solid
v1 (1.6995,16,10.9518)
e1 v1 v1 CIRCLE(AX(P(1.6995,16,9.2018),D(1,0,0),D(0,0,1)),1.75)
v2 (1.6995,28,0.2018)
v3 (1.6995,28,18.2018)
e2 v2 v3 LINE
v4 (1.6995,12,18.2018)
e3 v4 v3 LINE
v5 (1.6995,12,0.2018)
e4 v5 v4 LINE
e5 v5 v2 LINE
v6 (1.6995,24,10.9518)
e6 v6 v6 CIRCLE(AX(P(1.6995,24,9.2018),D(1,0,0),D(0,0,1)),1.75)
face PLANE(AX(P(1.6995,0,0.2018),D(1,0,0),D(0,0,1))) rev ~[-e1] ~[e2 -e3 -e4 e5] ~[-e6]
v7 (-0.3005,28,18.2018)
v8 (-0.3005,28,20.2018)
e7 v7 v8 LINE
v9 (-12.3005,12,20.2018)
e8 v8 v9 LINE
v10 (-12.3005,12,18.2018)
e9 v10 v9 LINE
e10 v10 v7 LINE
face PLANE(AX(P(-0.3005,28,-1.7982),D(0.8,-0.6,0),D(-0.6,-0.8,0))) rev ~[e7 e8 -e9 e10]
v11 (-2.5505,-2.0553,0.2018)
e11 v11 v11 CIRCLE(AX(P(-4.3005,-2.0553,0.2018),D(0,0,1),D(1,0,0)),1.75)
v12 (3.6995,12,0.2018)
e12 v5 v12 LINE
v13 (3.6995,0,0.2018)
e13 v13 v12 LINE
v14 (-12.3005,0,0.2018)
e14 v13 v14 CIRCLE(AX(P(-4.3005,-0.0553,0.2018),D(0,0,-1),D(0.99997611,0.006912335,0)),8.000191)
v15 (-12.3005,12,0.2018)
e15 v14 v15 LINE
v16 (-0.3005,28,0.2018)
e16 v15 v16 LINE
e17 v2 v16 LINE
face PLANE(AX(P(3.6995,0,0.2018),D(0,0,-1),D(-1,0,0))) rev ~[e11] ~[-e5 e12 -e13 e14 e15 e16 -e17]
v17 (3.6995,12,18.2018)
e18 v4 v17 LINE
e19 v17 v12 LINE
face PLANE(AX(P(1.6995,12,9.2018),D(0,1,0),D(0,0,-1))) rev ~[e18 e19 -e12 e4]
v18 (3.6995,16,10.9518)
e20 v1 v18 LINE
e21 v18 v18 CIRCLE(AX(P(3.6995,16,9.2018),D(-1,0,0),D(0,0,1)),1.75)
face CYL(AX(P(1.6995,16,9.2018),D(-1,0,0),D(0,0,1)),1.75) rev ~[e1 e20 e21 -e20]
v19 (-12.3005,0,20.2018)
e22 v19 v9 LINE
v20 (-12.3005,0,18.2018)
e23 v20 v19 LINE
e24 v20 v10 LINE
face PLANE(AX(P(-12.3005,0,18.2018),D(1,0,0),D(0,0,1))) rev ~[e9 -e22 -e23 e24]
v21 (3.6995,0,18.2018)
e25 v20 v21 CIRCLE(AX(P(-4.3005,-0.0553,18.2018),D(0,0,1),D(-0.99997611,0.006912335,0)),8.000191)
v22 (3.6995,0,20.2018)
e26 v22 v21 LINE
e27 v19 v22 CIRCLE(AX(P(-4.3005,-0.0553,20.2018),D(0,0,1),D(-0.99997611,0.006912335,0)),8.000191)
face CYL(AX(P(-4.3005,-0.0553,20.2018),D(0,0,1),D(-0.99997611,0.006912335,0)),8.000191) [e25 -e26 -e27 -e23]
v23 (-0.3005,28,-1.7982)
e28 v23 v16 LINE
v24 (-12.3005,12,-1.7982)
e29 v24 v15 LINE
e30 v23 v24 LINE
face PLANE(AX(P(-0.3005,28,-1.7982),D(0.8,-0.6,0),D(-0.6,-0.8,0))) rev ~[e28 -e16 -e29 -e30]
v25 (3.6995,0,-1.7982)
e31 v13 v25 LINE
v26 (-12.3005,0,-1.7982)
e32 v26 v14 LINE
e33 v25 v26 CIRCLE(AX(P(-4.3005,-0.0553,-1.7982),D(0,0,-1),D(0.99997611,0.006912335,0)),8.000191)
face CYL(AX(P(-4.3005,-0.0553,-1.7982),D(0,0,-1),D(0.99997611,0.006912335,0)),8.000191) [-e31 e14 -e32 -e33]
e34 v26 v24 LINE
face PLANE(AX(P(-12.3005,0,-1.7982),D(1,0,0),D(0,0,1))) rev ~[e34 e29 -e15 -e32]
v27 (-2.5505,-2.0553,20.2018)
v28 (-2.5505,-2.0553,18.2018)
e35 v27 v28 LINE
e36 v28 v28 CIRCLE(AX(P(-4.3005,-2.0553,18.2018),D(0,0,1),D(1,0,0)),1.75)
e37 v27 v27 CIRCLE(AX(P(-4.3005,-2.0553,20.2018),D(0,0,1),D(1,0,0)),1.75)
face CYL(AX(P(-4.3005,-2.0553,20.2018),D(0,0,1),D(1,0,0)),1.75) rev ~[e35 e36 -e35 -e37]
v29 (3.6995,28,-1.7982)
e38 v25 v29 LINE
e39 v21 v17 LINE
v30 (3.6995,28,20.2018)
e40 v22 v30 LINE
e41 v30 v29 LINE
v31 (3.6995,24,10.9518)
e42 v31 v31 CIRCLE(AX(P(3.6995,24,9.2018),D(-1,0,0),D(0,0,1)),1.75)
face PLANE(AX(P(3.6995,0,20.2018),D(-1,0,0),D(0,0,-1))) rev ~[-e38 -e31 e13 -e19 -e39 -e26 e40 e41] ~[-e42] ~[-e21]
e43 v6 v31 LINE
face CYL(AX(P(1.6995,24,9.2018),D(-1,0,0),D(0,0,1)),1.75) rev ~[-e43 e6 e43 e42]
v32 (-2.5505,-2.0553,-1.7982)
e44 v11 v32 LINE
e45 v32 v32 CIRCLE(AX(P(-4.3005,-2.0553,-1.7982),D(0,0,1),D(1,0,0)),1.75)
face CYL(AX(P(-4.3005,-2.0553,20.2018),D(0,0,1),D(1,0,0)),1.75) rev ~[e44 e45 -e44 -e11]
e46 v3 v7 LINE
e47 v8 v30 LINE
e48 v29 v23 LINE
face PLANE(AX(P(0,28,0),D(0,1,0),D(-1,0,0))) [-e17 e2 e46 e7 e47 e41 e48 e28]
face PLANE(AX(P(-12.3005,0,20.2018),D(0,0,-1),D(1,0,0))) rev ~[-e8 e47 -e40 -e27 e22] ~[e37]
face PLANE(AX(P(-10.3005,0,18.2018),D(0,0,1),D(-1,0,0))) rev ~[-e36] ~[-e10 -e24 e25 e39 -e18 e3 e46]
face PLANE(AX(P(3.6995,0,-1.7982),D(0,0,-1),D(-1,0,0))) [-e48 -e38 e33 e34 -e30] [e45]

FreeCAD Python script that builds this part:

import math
import FreeCAD as App
import Part
import Sketcher

doc = App.newDocument("Part")
body = doc.addObject("PartDesign::Body", "Body")

sketch1 = doc.addObject("Sketcher::SketchObject", "Sketch")
body.addObject(sketch1)
sketch1.AttachmentSupport = (doc.XZ_Plane, [""])
sketch1.MapMode = "FlatFace"
sketch1.addGeometry(Part.LineSegment(App.Vector(-12.3, 0.2, 0), App.Vector(1.7, 0.2, 0)), False)
sketch1.addGeometry(Part.LineSegment(App.Vector(1.7, 0.2, 0), App.Vector(1.7, 18.2, 0)), False)
sketch1.addGeometry(Part.LineSegment(App.Vector(1.7, 18.2, 0), App.Vector(-12.3, 18.2, 0)), False)
sketch1.addGeometry(Part.LineSegment(App.Vector(-12.3, 18.2, 0), App.Vector(-12.3, 20.2, 0)), False)
sketch1.addGeometry(Part.LineSegment(App.Vector(-12.3, 20.2, 0), App.Vector(3.7, 20.2, 0)), False)
sketch1.addGeometry(Part.LineSegment(App.Vector(3.7, 20.2, 0), App.Vector(3.7, -1.8, 0)), False)
sketch1.addGeometry(Part.LineSegment(App.Vector(3.7, -1.8, 0), App.Vector(-12.3, -1.8, 0)), False)
sketch1.addGeometry(Part.LineSegment(App.Vector(-12.3, -1.8, 0), App.Vector(-12.3, 0.2, 0)), False)
sketch1.addConstraint(Sketcher.Constraint("Coincident", 0, 2, 1, 1))
sketch1.addConstraint(Sketcher.Constraint("Coincident", 1, 2, 2, 1))
sketch1.addConstraint(Sketcher.Constraint("Coincident", 2, 2, 3, 1))
sketch1.addConstraint(Sketcher.Constraint("Coincident", 3, 2, 4, 1))
sketch1.addConstraint(Sketcher.Constraint("Coincident", 4, 2, 5, 1))
sketch1.addConstraint(Sketcher.Constraint("Coincident", 5, 2, 6, 1))
sketch1.addConstraint(Sketcher.Constraint("Coincident", 6, 2, 7, 1))
sketch1.addConstraint(Sketcher.Constraint("Coincident", 7, 2, 0, 1))
sketch1.addConstraint(Sketcher.Constraint("Horizontal", 0))
sketch1.addConstraint(Sketcher.Constraint("Vertical", 1))
sketch1.addConstraint(Sketcher.Constraint("Horizontal", 2))
sketch1.addConstraint(Sketcher.Constraint("Vertical", 3))
sketch1.addConstraint(Sketcher.Constraint("Horizontal", 4))
sketch1.addConstraint(Sketcher.Constraint("Vertical", 5))
sketch1.addConstraint(Sketcher.Constraint("Horizontal", 6))
sketch1.addConstraint(Sketcher.Constraint("Vertical", 7))
sketch1.addConstraint(Sketcher.Constraint("Vertical", 3, 2, 6, 2))
sketch1.addConstraint(Sketcher.Constraint("Equal", 3, 7))
sketch1.addConstraint(Sketcher.Constraint("DistanceY", 1, 1, 1, 2, 18.0))
sketch1.addConstraint(Sketcher.Constraint("DistanceX", 0, 1, 0, 2, 14.0))
sketch1.addConstraint(Sketcher.Constraint("DistanceX", 4, 1, 4, 2, 16.0))
sketch1.addConstraint(Sketcher.Constraint("DistanceY", 3, 1, 3, 2, 2.0))
sketch1.addConstraint(Sketcher.Constraint("DistanceX", -1, 1, 0, 2, 1.6995))
sketch1.addConstraint(Sketcher.Constraint("DistanceY", -1, 1, 0, 2, 0.2018))
pad1 = doc.addObject("PartDesign::Pad", "Pad")
body.addObject(pad1)
pad1.Profile = sketch1
pad1.Length = 28
pad1.Reversed = True

sketch2 = doc.addObject("Sketcher::SketchObject", "Sketch001")
body.addObject(sketch2)
sketch2.AttachmentSupport = (doc.YZ_Plane, [""])
sketch2.MapMode = "FlatFace"
sketch2.AttachmentOffset = App.Placement(App.Vector(0, 0, 1.6995), App.Rotation())
sketch2.addGeometry(Part.LineSegment(App.Vector(0, 0.2, 0), App.Vector(0, 18.2, 0)), False)
sketch2.addGeometry(Part.LineSegment(App.Vector(0, 18.2, 0), App.Vector(12, 18.2, 0)), False)
sketch2.addGeometry(Part.LineSegment(App.Vector(12, 18.2, 0), App.Vector(12, 0.2, 0)), False)
sketch2.addGeometry(Part.LineSegment(App.Vector(12, 0.2, 0), App.Vector(0, 0.2, 0)), False)
sketch2.addGeometry(Part.Circle(App.Vector(16, 9.2, 0), App.Vector(0, 0, 1), 1.8), False)
sketch2.addGeometry(Part.Circle(App.Vector(24, 9.2, 0), App.Vector(0, 0, 1), 1.8), False)
sketch2.addConstraint(Sketcher.Constraint("Coincident", 0, 2, 1, 1))
sketch2.addConstraint(Sketcher.Constraint("Coincident", 1, 2, 2, 1))
sketch2.addConstraint(Sketcher.Constraint("Coincident", 2, 2, 3, 1))
sketch2.addConstraint(Sketcher.Constraint("Coincident", 3, 2, 0, 1))
sketch2.addConstraint(Sketcher.Constraint("Vertical", 0))
sketch2.addConstraint(Sketcher.Constraint("Horizontal", 1))
sketch2.addConstraint(Sketcher.Constraint("Vertical", 2))
sketch2.addConstraint(Sketcher.Constraint("Horizontal", 3))
sketch2.addConstraint(Sketcher.Constraint("Equal", 4, 5))
sketch2.addConstraint(Sketcher.Constraint("PointOnObject", 0, 2, -2))
sketch2.addConstraint(Sketcher.Constraint("Horizontal", 4, 3, 5, 3))
sketch2.addConstraint(Sketcher.Constraint("Diameter", 4, 3.5))
sketch2.addConstraint(Sketcher.Constraint("DistanceX", -1, 1, 4, 3, 16.0))
sketch2.addConstraint(Sketcher.Constraint("DistanceX", 1, 2, 4, 3, 4.0))
sketch2.addConstraint(Sketcher.Constraint("DistanceY", 0, 1, 0, 2, 18.0))
sketch2.addConstraint(Sketcher.Constraint("DistanceX", -1, 1, 5, 3, 24.0))
sketch2.addConstraint(Sketcher.Constraint("DistanceY", 4, 3, 0, 2, 9.0))
sketch2.addConstraint(Sketcher.Constraint("DistanceY", -1, 1, 4, 3, 9.2018))
pocket1 = doc.addObject("PartDesign::Pocket", "Pocket")
body.addObject(pocket1)
pocket1.Profile = sketch2
pocket1.Length = 2
pocket1.Reversed = True

sketch3 = doc.addObject("Sketcher::SketchObject", "Sketch002")
body.addObject(sketch3)
sketch3.AttachmentSupport = (doc.XY_Plane, [""])
sketch3.MapMode = "FlatFace"
sketch3.AttachmentOffset = App.Placement(App.Vector(0, 0, -1.7982), App.Rotation())
sketch3.addGeometry(Part.LineSegment(App.Vector(-12, 28, 0), App.Vector(0, 28, 0)), False)
sketch3.addGeometry(Part.LineSegment(App.Vector(0, 28, 0), App.Vector(-12, 12, 0)), False)
sketch3.addGeometry(Part.LineSegment(App.Vector(-12, 12, 0), App.Vector(-12, 28, 0)), False)
sketch3.addConstraint(Sketcher.Constraint("Coincident", 0, 2, 1, 1))
sketch3.addConstraint(Sketcher.Constraint("Coincident", 1, 2, 2, 1))
sketch3.addConstraint(Sketcher.Constraint("Coincident", 2, 2, 0, 1))
sketch3.addConstraint(Sketcher.Constraint("Horizontal", 0))
sketch3.addConstraint(Sketcher.Constraint("Vertical", 2))
sketch3.addConstraint(Sketcher.Constraint("DistanceY", 2, 1, 2, 2, 16.0))
sketch3.addConstraint(Sketcher.Constraint("DistanceX", 0, 1, 0, 2, 12.0))
sketch3.addConstraint(Sketcher.Constraint("DistanceY", -1, 1, 0, 2, 28.0))
sketch3.addConstraint(Sketcher.Constraint("DistanceX", 0, 2, -1, 1, 0.3005))
pocket2 = doc.addObject("PartDesign::Pocket", "Pocket001")
body.addObject(pocket2)
pocket2.Profile = sketch3
pocket2.Length = 30
pocket2.Reversed = True

sketch4 = doc.addObject("Sketcher::SketchObject", "Sketch003")
body.addObject(sketch4)
sketch4.AttachmentSupport = (doc.XY_Plane, [""])
sketch4.MapMode = "FlatFace"
sketch4.AttachmentOffset = App.Placement(App.Vector(0, 0, 20.2018), App.Rotation())
sketch4.addGeometry(Part.LineSegment(App.Vector(3.6995, 0, 0), App.Vector(-12.3005, 0, 0)), False)
sketch4.addGeometry(Part.ArcOfCircle(Part.Circle(App.Vector(-4.3005, -0.0553, 0), App.Vector(0, 0, 1), 8.000191), math.radians(179.603949), math.radians(360.396051)), False)
sketch4.addConstraint(Sketcher.Constraint("Coincident", 0, 1, 1, 2))
sketch4.addConstraint(Sketcher.Constraint("Coincident", 1, 1, 0, 2))
sketch4.addConstraint(Sketcher.Constraint("Horizontal", 0))
sketch4.addConstraint(Sketcher.Constraint("PointOnObject", 0, 1, -1))
sketch4.addConstraint(Sketcher.Constraint("DistanceX", 0, 2, 0, 1, 16.0))
sketch4.addConstraint(Sketcher.Constraint("Radius", 1, 8.0002))
sketch4.addConstraint(Sketcher.Constraint("DistanceX", 1, 3, -1, 1, 4.3005))
pad2 = doc.addObject("PartDesign::Pad", "Pad001")
body.addObject(pad2)
pad2.Profile = sketch4
pad2.Length = 2
pad2.Reversed = True

sketch5 = doc.addObject("Sketcher::SketchObject", "Sketch004")
body.addObject(sketch5)
sketch5.AttachmentSupport = (doc.XY_Plane, [""])
sketch5.MapMode = "FlatFace"
sketch5.AttachmentOffset = App.Placement(App.Vector(0, 0, -1.7982), App.Rotation())
sketch5.addGeometry(Part.LineSegment(App.Vector(-12.3005, 0, 0), App.Vector(3.6995, 0, 0)), False)
sketch5.addGeometry(Part.ArcOfCircle(Part.Circle(App.Vector(-4.3005, -0.0553, 0), App.Vector(0, 0, 1), 8.000191), math.radians(179.603949), math.radians(360.396051)), False)
sketch5.addConstraint(Sketcher.Constraint("Coincident", 0, 1, 1, 1))
sketch5.addConstraint(Sketcher.Constraint("Coincident", 1, 2, 0, 2))
sketch5.addConstraint(Sketcher.Constraint("Horizontal", 0))
sketch5.addConstraint(Sketcher.Constraint("PointOnObject", 0, 1, -1))
sketch5.addConstraint(Sketcher.Constraint("DistanceX", 0, 1, 0, 2, 16.0))
sketch5.addConstraint(Sketcher.Constraint("Radius", 1, 8.0002))
sketch5.addConstraint(Sketcher.Constraint("DistanceX", 1, 3, -1, 1, 4.3005))
pad3 = doc.addObject("PartDesign::Pad", "Pad002")
body.addObject(pad3)
pad3.Profile = sketch5
pad3.Length = 2

sketch6 = doc.addObject("Sketcher::SketchObject", "Sketch005")
body.addObject(sketch6)
sketch6.AttachmentSupport = (doc.XY_Plane, [""])
sketch6.MapMode = "FlatFace"
sketch6.AttachmentOffset = App.Placement(App.Vector(0, 0, 20.2018), App.Rotation())
sketch6.addGeometry(Part.Circle(App.Vector(-4.3, -2.1, 0), App.Vector(0, 0, 1), 1.8), False)
sketch6.addConstraint(Sketcher.Constraint("Diameter", 0, 3.5))
sketch6.addConstraint(Sketcher.Constraint("DistanceX", 0, 3, -1, 1, 4.3005))
sketch6.addConstraint(Sketcher.Constraint("DistanceY", 0, 3, -1, 1, 2.0553))
pocket3 = doc.addObject("PartDesign::Pocket", "Pocket002")
body.addObject(pocket3)
pocket3.Profile = sketch6
pocket3.Length = 30

doc.recompute()
